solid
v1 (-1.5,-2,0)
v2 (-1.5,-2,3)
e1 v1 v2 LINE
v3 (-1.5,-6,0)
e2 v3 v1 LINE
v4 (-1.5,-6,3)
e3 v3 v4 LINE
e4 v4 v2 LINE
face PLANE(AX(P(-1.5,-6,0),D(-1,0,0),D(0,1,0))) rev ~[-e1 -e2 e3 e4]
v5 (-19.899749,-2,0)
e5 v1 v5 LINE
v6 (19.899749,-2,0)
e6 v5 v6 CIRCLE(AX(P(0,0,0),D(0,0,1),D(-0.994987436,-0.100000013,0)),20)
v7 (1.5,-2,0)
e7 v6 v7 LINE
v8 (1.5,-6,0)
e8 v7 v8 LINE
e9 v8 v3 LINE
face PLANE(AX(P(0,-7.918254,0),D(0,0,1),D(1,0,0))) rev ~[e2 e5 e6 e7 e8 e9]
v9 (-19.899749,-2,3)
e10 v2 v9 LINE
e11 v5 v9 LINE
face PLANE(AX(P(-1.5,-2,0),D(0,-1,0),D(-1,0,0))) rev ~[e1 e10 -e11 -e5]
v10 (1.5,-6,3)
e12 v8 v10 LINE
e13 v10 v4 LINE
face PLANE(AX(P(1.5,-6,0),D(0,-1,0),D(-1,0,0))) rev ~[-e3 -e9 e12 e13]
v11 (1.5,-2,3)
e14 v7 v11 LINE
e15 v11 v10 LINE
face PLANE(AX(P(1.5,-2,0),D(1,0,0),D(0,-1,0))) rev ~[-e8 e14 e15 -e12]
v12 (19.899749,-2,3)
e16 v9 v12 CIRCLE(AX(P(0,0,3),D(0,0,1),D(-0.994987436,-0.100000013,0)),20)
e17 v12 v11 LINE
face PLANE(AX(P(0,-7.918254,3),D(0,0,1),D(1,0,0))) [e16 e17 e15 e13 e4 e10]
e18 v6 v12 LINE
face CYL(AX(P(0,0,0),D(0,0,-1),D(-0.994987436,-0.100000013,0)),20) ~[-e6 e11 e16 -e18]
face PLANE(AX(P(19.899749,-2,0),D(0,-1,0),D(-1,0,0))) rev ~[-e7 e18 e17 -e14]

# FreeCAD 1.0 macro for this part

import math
import FreeCAD as App
import Part
import Sketcher

V = App.Vector

doc = App.newDocument("Part")
params = doc.addObject("Spreadsheet::Sheet", "Params")
for row, (alias, value) in enumerate([
    ("sketch1_radius", "20 mm"),
    ("sketch1_width", "3 mm"),
    ("sketch1_height", "4 mm"),
    ("pad1_length", "3 mm"),
], start=1):
    params.set(f"A{row}", alias)
    params.set(f"B{row}", "=" + value)
    params.setAlias(f"B{row}", alias)

body = doc.addObject("PartDesign::Body", "Body")

# Sketch on XY plane
sketch1 = body.newObject("Sketcher::SketchObject", "Sketch")
sketch1.AttachmentSupport = (doc.getObject("XY_Plane"), [""])
sketch1.MapMode = "FlatFace"
sketch1.addGeometry([
    Part.LineSegment(V(-1.5, -2, 0), V(-19.9, -2, 0)),  # 0
    Part.ArcOfCircle(Part.Circle(V(0, 0, 0), V(0, 0, 1), 20), math.radians(-174), math.radians(-6)),  # 1
    Part.LineSegment(V(19.9, -2, 0), V(1.5, -2, 0)),  # 2
    Part.LineSegment(V(1.5, -2, 0), V(1.5, -6, 0)),  # 3
    Part.LineSegment(V(1.5, -6, 0), V(-1.5, -6, 0)),  # 4
    Part.LineSegment(V(-1.5, -6, 0), V(-1.5, -2, 0)),  # 5
], False)
sketch1.addConstraint([
    Sketcher.Constraint("Coincident", 0, 2, 1, 1),
    Sketcher.Constraint("Coincident", 1, 2, 2, 1),
    Sketcher.Constraint("Coincident", 2, 2, 3, 1),
    Sketcher.Constraint("Coincident", 3, 2, 4, 1),
    Sketcher.Constraint("Coincident", 4, 2, 5, 1),
    Sketcher.Constraint("Coincident", 5, 2, 0, 1),
    Sketcher.Constraint("Horizontal", 0),
    Sketcher.Constraint("Horizontal", 2),
    Sketcher.Constraint("Vertical", 3),
    Sketcher.Constraint("Horizontal", 4),
    Sketcher.Constraint("Vertical", 5),
    Sketcher.Constraint("Coincident", 1, 3, -1, 1),
    Sketcher.Constraint("Symmetric", 2, 2, 5, 2, -2),
    Sketcher.Constraint("Radius", 1, 20.0),
    Sketcher.Constraint("DistanceX", 4, 2, 4, 1, 3.0),
    Sketcher.Constraint("DistanceY", 3, 2, 3, 1, 4.0),
    Sketcher.Constraint("DistanceY", 0, 2, -1, 1, 2.0),
])
sketch1.setExpression("Constraints[13]", "Params.sketch1_radius")
sketch1.setExpression("Constraints[14]", "Params.sketch1_width")
sketch1.setExpression("Constraints[15]", "Params.sketch1_height")
pad1 = body.newObject("PartDesign::Pad", "Pad")
pad1.Profile = sketch1
pad1.setExpression("Length", "Params.pad1_length")

doc.recompute()
